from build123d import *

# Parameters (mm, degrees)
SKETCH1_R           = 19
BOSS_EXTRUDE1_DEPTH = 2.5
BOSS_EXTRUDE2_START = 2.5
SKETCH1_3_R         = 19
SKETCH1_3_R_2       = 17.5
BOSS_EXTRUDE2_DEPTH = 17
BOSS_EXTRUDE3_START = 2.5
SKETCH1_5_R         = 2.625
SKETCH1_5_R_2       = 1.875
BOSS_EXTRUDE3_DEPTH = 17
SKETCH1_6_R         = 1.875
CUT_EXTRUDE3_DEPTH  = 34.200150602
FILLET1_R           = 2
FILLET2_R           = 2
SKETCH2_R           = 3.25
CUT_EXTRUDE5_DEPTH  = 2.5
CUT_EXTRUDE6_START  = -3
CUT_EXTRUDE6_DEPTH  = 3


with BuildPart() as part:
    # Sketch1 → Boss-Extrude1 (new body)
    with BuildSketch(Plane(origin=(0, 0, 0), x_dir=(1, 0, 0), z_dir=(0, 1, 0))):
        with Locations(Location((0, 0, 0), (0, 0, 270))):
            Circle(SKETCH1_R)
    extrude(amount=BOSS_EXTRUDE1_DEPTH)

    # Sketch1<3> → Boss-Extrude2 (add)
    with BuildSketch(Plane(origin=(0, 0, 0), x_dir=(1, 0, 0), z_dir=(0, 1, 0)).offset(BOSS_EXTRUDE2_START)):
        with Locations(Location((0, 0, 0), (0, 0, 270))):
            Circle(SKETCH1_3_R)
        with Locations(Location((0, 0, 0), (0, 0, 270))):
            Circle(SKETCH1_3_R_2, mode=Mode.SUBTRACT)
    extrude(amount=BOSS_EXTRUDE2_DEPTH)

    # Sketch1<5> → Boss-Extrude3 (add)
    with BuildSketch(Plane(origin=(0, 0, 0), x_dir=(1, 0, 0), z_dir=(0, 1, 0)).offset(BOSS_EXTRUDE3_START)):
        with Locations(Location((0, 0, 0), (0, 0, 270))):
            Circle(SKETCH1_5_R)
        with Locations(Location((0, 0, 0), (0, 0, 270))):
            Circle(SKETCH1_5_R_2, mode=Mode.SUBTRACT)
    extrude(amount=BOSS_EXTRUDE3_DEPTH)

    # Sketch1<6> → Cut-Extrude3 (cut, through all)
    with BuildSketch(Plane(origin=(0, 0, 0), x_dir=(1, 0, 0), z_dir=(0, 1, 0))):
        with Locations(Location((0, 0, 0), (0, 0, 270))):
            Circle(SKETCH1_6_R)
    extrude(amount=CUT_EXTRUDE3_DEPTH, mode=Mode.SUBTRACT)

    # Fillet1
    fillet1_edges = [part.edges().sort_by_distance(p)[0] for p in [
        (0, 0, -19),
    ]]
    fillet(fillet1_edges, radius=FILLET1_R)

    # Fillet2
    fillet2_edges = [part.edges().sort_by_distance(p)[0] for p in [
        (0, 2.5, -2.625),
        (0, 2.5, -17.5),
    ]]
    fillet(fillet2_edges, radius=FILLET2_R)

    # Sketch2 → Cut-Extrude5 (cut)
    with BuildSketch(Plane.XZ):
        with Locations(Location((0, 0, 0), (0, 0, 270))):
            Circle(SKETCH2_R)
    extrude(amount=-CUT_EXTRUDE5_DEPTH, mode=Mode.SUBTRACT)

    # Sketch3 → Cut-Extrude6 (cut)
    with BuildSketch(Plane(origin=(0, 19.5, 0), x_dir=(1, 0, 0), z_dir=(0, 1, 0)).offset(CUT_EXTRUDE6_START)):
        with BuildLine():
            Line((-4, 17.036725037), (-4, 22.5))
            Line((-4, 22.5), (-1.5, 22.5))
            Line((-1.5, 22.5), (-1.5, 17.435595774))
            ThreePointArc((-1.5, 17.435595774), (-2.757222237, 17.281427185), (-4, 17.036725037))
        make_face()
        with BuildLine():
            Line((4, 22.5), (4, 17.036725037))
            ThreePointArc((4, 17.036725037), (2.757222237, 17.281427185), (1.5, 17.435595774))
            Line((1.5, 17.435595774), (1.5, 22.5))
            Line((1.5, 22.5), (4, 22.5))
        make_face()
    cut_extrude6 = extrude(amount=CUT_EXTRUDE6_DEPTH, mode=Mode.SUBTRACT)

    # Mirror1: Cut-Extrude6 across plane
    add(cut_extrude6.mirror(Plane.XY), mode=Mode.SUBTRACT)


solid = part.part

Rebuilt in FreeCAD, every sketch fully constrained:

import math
import FreeCAD as App
import Part
import Sketcher
from FreeCAD import Vector
Q = App.Units.Quantity


def edges_at(feature, points):
    """Names of the edges that pass closest to the given points."""
    edges = feature.Shape.Edges
    near = lambda p: min(range(len(edges)), key=lambda i: edges[i].distToShape(Part.Vertex(*p))[0])
    return sorted({f"Edge{near(p) + 1}" for p in points})

doc = App.newDocument("Part")
params = doc.addObject("Spreadsheet::Sheet", "Params")
for row, (alias, value) in enumerate([
    ("sketch1_diameter", "38 mm"),
    ("pad1_length", "2.5 mm"),
    ("sketch2_diameter", "38 mm"),
    ("sketch2_diameter2", "35 mm"),
    ("pad2_length", "17 mm"),
    ("sketch3_diameter", "5.25 mm"),
    ("sketch3_diameter2", "3.75 mm"),
    ("pad3_length", "17 mm"),
    ("sketch4_diameter", "3.75 mm"),
    ("fillet_radius", "2 mm"),
    ("fillet2_radius", "2 mm"),
    ("sketch5_diameter", "6.5 mm"),
    ("pocket2_length", "2.5 mm"),
    ("sketch6_radius", "17.5 mm"),
    ("sketch6_width", "2.5 mm"),
    ("pocket3_length", "3 mm"),
], start=1):
    params.set(f"A{row}", alias)
    params.set(f"B{row}", "=" + value)
    params.setAlias(f"B{row}", alias)

body = doc.addObject("PartDesign::Body", "Body")

# Sketch on XZ plane
sketch1 = doc.addObject("Sketcher::SketchObject", "Sketch")
body.addObject(sketch1)
sketch1.AttachmentSupport = (doc.XZ_Plane, [""])
sketch1.MapMode = "FlatFace"
sketch1.addGeometry(Part.Circle(Vector(0, 0, 0), Vector(0, 0, 1), 19), False)
sketch1.addConstraint([
    Sketcher.Constraint("Coincident", 0, 3, -1, 1),
    Sketcher.Constraint("Diameter", 0, Q("38 mm")),
])
sketch1.setExpression("Constraints[1]", "Params.sketch1_diameter")
pad1 = doc.addObject("PartDesign::Pad", "Pad")
body.addObject(pad1)
pad1.Profile = sketch1
pad1.setExpression("Length", "Params.pad1_length")
pad1.Reversed = True

# Sketch on XZ plane
sketch2 = doc.addObject("Sketcher::SketchObject", "Sketch001")
body.addObject(sketch2)
sketch2.AttachmentSupport = (doc.XZ_Plane, [""])
sketch2.MapMode = "FlatFace"
sketch2.AttachmentOffset = App.Placement(Vector(0, 0, -2.5), App.Rotation())
sketch2.addGeometry([
    Part.Circle(Vector(0, 0, 0), Vector(0, 0, 1), 19),
    Part.Circle(Vector(0, 0, 0), Vector(0, 0, 1), 18),
], False)
sketch2.addConstraint([
    Sketcher.Constraint("Coincident", 0, 3, -1, 1),
    Sketcher.Constraint("Coincident", 1, 3, -1, 1),
    Sketcher.Constraint("Diameter", 0, Q("38 mm")),
    Sketcher.Constraint("Diameter", 1, Q("35 mm")),
])
sketch2.setExpression("Constraints[2]", "Params.sketch2_diameter")
sketch2.setExpression("Constraints[3]", "Params.sketch2_diameter2")
pad2 = doc.addObject("PartDesign::Pad", "Pad001")
body.addObject(pad2)
pad2.Profile = sketch2
pad2.setExpression("Length", "Params.pad2_length")
pad2.Reversed = True

# Sketch on XZ plane
sketch3 = doc.addObject("Sketcher::SketchObject", "Sketch002")
body.addObject(sketch3)
sketch3.AttachmentSupport = (doc.XZ_Plane, [""])
sketch3.MapMode = "FlatFace"
sketch3.AttachmentOffset = App.Placement(Vector(0, 0, -2.5), App.Rotation())
sketch3.addGeometry([
    Part.Circle(Vector(0, 0, 0), Vector(0, 0, 1), 2.6),
    Part.Circle(Vector(0, 0, 0), Vector(0, 0, 1), 1.9),
], False)
sketch3.addConstraint([
    Sketcher.Constraint("Coincident", 0, 3, -1, 1),
    Sketcher.Constraint("Coincident", 1, 3, -1, 1),
    Sketcher.Constraint("Diameter", 0, Q("5.25 mm")),
    Sketcher.Constraint("Diameter", 1, Q("3.75 mm")),
])
sketch3.setExpression("Constraints[2]", "Params.sketch3_diameter")
sketch3.setExpression("Constraints[3]", "Params.sketch3_diameter2")
pad3 = doc.addObject("PartDesign::Pad", "Pad002")
body.addObject(pad3)
pad3.Profile = sketch3
pad3.setExpression("Length", "Params.pad3_length")
pad3.Reversed = True

# Sketch on XZ plane
sketch4 = doc.addObject("Sketcher::SketchObject", "Sketch003")
body.addObject(sketch4)
sketch4.AttachmentSupport = (doc.XZ_Plane, [""])
sketch4.MapMode = "FlatFace"
sketch4.addGeometry(Part.Circle(Vector(0, 0, 0), Vector(0, 0, 1), 1.9), False)
sketch4.addConstraint([
    Sketcher.Constraint("Coincident", 0, 3, -1, 1),
    Sketcher.Constraint("Diameter", 0, Q("3.75 mm")),
])
sketch4.setExpression("Constraints[1]", "Params.sketch4_diameter")
pocket1 = doc.addObject("PartDesign::Pocket", "Pocket")
body.addObject(pocket1)
pocket1.Profile = sketch4
pocket1.Type = "ThroughAll"
doc.recompute()

fillet = doc.addObject("PartDesign::Fillet", "Fillet")
body.addObject(fillet)
fillet.Base = (pocket1, edges_at(pocket1, [(0, 0, -19)]))
fillet.setExpression("Radius", "Params.fillet_radius")
doc.recompute()

fillet2 = doc.addObject("PartDesign::Fillet", "Fillet001")
body.addObject(fillet2)
fillet2.Base = (fillet, edges_at(fillet, [(0, 2.5, -2.625), (0, 2.5, -17.5)]))
fillet2.setExpression("Radius", "Params.fillet2_radius")

# Sketch on XZ plane
sketch5 = doc.addObject("Sketcher::SketchObject", "Sketch004")
body.addObject(sketch5)
sketch5.AttachmentSupport = (doc.XZ_Plane, [""])
sketch5.MapMode = "FlatFace"
sketch5.addGeometry(Part.Circle(Vector(0, 0, 0), Vector(0, 0, 1), 3.2), False)
sketch5.addConstraint([
    Sketcher.Constraint("Coincident", 0, 3, -1, 1),
    Sketcher.Constraint("Diameter", 0, Q("6.5 mm")),
])
sketch5.setExpression("Constraints[1]", "Params.sketch5_diameter")
pocket2 = doc.addObject("PartDesign::Pocket", "Pocket001")
body.addObject(pocket2)
pocket2.Profile = sketch5
pocket2.setExpression("Length", "Params.pocket2_length")

# Sketch on XZ plane
sketch6 = doc.addObject("Sketcher::SketchObject", "Sketch005")
body.addObject(sketch6)
sketch6.AttachmentSupport = (doc.XZ_Plane, [""])
sketch6.MapMode = "FlatFace"
sketch6.AttachmentOffset = App.Placement(Vector(0, 0, -16.5), App.Rotation())
sketch6.addGeometry([
    Part.LineSegment(Vector(-4, -22.5, 0), Vector(-4, -17, 0)),  # 0
    Part.ArcOfCircle(Part.Circle(Vector(0, 0, 0), Vector(0, 0, 1), 17.5), math.radians(-103.21), math.radians(-94.92)),  # 1
    Part.LineSegment(Vector(-1.5, -17.4, 0), Vector(-1.5, -22.5, 0)),  # 2
    Part.LineSegment(Vector(-1.5, -22.5, 0), Vector(-4, -22.5, 0)),  # 3
    Part.LineSegment(Vector(4, -17, 0), Vector(4, -22.5, 0)),  # 4
    Part.LineSegment(Vector(4, -22.5, 0), Vector(1.5, -22.5, 0)),  # 5
    Part.LineSegment(Vector(1.5, -22.5, 0), Vector(1.5, -17.4, 0)),  # 6
    Part.ArcOfCircle(Part.Circle(Vector(0, 0, 0), Vector(0, 0, 1), 17.5), math.radians(-85.08), math.radians(-76.79)),  # 7
], False)
sketch6.addConstraint([
    Sketcher.Constraint("Coincident", 0, 2, 1, 1),
    Sketcher.Constraint("Coincident", 1, 2, 2, 1),
    Sketcher.Constraint("Coincident", 2, 2, 3, 1),
    Sketcher.Constraint("Coincident", 3, 2, 0, 1),
    Sketcher.Constraint("Coincident", 4, 2, 5, 1),
    Sketcher.Constraint("Coincident", 5, 2, 6, 1),
    Sketcher.Constraint("Coincident", 6, 2, 7, 1),
    Sketcher.Constraint("Coincident", 7, 2, 4, 1),
    Sketcher.Constraint("Vertical", 0),
    Sketcher.Constraint("Vertical", 2),
    Sketcher.Constraint("Horizontal", 3),
    Sketcher.Constraint("Vertical", 4),
    Sketcher.Constraint("Horizontal", 5),
    Sketcher.Constraint("Vertical", 6),
    Sketcher.Constraint("Coincident", 1, 3, -1, 1),
    Sketcher.Constraint("Coincident", 7, 3, -1, 1),
    Sketcher.Constraint("Equal", 1, 7),
    Sketcher.Constraint("Symmetric", 3, 2, 4, 2, -2),
    Sketcher.Constraint("Horizontal", 1, 2, 6, 2),
    Sketcher.Constraint("Radius", 1, Q("17.5 mm")),
    Sketcher.Constraint("DistanceX", 3, 2, 3, 1, Q("2.5 mm")),
    Sketcher.Constraint("DistanceX", 0, 2, -1, 1, Q("4 mm")),
    Sketcher.Constraint("DistanceY", 2, 2, -1, 1, Q("22.5 mm")),
])
sketch6.setExpression("Constraints[19]", "Params.sketch6_radius")
sketch6.setExpression("Constraints[20]", "Params.sketch6_width")
pocket3 = doc.addObject("PartDesign::Pocket", "Pocket002")
body.addObject(pocket3)
pocket3.Profile = sketch6
pocket3.setExpression("Length", "Params.pocket3_length")
doc.recompute()

mirrored = doc.addObject("PartDesign::Mirrored", "Mirrored")
body.addObject(mirrored)
mirrored.Originals = [pocket3]
mirrored.MirrorPlane = (doc.XY_Plane, [""])
body.Tip = mirrored

doc.recompute()
